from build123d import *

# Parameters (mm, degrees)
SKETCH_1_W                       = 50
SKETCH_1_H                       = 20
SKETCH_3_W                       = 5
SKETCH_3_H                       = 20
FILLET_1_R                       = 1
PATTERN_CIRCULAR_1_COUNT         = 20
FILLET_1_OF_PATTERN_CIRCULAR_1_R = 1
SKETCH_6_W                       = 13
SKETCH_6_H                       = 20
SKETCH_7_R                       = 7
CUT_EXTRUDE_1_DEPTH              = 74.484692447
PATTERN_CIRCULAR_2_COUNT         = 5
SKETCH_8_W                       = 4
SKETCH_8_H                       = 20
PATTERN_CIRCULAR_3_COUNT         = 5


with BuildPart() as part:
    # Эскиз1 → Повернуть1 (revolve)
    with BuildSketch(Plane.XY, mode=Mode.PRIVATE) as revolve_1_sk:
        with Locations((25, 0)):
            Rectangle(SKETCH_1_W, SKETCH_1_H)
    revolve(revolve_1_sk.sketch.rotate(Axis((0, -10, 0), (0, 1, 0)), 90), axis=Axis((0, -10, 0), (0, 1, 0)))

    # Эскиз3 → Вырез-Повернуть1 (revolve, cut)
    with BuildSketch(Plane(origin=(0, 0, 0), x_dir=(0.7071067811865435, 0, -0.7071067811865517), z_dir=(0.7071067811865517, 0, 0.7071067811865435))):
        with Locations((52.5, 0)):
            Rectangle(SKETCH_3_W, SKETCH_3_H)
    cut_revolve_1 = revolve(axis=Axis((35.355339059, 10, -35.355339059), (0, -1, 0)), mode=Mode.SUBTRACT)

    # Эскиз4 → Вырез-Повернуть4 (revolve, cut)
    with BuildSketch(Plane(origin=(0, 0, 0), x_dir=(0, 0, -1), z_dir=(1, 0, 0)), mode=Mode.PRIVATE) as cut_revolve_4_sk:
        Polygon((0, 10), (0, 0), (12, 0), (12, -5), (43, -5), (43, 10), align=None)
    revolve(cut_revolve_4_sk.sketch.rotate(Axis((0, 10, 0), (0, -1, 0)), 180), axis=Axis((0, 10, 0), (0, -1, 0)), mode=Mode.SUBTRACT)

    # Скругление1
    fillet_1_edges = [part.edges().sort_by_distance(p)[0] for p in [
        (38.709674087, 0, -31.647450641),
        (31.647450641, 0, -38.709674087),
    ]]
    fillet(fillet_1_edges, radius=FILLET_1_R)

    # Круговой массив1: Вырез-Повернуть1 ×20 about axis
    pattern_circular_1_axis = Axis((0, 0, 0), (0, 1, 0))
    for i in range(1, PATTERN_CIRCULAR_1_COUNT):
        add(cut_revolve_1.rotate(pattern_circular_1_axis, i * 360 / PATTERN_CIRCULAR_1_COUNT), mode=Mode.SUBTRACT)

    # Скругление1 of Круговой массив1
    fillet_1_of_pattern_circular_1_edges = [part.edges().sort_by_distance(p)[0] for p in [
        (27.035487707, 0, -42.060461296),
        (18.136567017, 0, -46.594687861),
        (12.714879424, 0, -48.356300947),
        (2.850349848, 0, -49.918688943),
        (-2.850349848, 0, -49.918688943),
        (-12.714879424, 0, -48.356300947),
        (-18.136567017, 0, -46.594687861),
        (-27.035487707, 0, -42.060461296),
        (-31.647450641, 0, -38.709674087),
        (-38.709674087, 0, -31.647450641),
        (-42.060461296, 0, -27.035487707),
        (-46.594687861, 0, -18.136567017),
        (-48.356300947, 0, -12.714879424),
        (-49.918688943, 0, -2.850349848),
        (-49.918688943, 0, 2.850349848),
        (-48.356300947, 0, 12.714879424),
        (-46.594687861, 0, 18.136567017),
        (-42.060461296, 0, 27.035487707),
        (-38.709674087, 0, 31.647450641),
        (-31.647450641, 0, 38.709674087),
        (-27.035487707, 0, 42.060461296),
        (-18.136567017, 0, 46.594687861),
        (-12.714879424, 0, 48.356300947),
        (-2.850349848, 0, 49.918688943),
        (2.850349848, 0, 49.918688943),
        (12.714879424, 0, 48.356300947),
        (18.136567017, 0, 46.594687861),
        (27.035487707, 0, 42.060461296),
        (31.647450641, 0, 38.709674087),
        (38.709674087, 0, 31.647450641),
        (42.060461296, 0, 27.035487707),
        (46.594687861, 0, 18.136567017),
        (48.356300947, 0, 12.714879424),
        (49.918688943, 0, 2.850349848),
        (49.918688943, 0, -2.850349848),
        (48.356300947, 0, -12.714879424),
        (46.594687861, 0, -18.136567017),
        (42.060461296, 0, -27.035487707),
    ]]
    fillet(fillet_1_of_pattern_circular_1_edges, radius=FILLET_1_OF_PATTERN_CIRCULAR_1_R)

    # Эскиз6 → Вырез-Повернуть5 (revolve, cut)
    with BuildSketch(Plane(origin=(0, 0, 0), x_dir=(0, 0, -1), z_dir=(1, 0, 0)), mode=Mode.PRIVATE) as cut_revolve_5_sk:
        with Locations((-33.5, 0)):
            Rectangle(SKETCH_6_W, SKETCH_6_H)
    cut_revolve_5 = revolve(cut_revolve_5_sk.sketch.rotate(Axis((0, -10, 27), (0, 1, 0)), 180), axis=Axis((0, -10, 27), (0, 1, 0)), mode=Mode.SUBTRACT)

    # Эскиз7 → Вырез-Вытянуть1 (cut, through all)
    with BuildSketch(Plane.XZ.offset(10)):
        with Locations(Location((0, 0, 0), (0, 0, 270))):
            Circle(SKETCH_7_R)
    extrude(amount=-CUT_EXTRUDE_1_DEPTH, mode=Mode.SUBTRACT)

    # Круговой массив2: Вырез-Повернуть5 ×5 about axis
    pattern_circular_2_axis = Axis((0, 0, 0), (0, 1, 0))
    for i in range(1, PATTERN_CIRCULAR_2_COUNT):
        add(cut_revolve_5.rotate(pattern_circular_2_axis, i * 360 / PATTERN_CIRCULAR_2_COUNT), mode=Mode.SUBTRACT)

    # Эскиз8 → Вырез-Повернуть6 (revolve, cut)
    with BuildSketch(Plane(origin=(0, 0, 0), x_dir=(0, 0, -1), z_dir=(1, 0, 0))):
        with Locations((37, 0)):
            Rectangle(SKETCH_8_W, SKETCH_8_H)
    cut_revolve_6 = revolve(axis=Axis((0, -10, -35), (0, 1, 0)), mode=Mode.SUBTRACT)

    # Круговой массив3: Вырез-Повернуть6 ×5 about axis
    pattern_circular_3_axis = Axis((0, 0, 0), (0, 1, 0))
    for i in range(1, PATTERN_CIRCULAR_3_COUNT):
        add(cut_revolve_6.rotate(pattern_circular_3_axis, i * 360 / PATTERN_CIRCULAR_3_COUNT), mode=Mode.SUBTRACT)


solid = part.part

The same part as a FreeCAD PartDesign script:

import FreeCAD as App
import Part
import Sketcher

V = App.Vector


def edges_at(feature, points):
    """Names of the edges that pass closest to the given points."""
    edges = feature.Shape.Edges
    near = lambda p: min(range(len(edges)), key=lambda i: edges[i].distToShape(Part.Vertex(*p))[0])
    return sorted({f"Edge{near(p) + 1}" for p in points})

doc = App.newDocument("Part")
body = doc.addObject("PartDesign::Body", "Body")

# Sketch on XY plane
sketch1 = body.newObject("Sketcher::SketchObject", "Sketch")
sketch1.AttachmentSupport = (doc.getObject("XY_Plane"), [""])
sketch1.MapMode = "FlatFace"
sketch1.addGeometry(Part.LineSegment(V(0, 10, 0), V(0, -10, 0)), False)
sketch1.addGeometry(Part.LineSegment(V(0, -10, 0), V(50, -10, 0)), False)
sketch1.addGeometry(Part.LineSegment(V(50, -10, 0), V(50, 10, 0)), False)
sketch1.addGeometry(Part.LineSegment(V(50, 10, 0), V(0, 10, 0)), False)
sketch1.addConstraint(Sketcher.Constraint("Coincident", 0, 2, 1, 1))
sketch1.addConstraint(Sketcher.Constraint("Coincident", 1, 2, 2, 1))
sketch1.addConstraint(Sketcher.Constraint("Coincident", 2, 2, 3, 1))
sketch1.addConstraint(Sketcher.Constraint("Coincident", 3, 2, 0, 1))
sketch1.addConstraint(Sketcher.Constraint("Vertical", 0))
sketch1.addConstraint(Sketcher.Constraint("Horizontal", 1))
sketch1.addConstraint(Sketcher.Constraint("Vertical", 2))
sketch1.addConstraint(Sketcher.Constraint("Horizontal", 3))
sketch1.addConstraint(Sketcher.Constraint("Symmetric", 0, 2, 3, 2, -1, 1))
sketch1.addConstraint(Sketcher.Constraint("DistanceX", 1, 1, 1, 2, 50.0))
sketch1.addConstraint(Sketcher.Constraint("DistanceY", 0, 2, 0, 1, 20.0))
revolution = body.newObject("PartDesign::Revolution", "Revolution")
revolution.Profile = sketch1
revolution.ReferenceAxis = (sketch1, ["V_Axis"])
revolution.Angle = 360

# Sketch on an angled plane
sketch2 = body.newObject("Sketcher::SketchObject", "Sketch001")
sketch2.Placement = App.Placement(V(0, 0, 0), App.Rotation(V(0.707106781, 0, -0.707106781), V(0, 0.999999999, 0), V(0.707106781, 0, 0.707106781), "ZXY"))
sketch2.addGeometry(Part.LineSegment(V(50, 10, 0), V(50, -10, 0)), False)
sketch2.addGeometry(Part.LineSegment(V(50, -10, 0), V(55, -10, 0)), False)
sketch2.addGeometry(Part.LineSegment(V(55, -10, 0), V(55, 10, 0)), False)
sketch2.addGeometry(Part.LineSegment(V(55, 10, 0), V(50, 10, 0)), False)
sketch2.addGeometry(Part.LineSegment(V(50, 10, 0), V(50, -10, 0)), True)  # axis
sketch2.addConstraint(Sketcher.Constraint("Coincident", 0, 2, 1, 1))
sketch2.addConstraint(Sketcher.Constraint("Coincident", 1, 2, 2, 1))
sketch2.addConstraint(Sketcher.Constraint("Coincident", 2, 2, 3, 1))
sketch2.addConstraint(Sketcher.Constraint("Coincident", 3, 2, 0, 1))
sketch2.addConstraint(Sketcher.Constraint("Vertical", 0))
sketch2.addConstraint(Sketcher.Constraint("Horizontal", 1))
sketch2.addConstraint(Sketcher.Constraint("Vertical", 2))
sketch2.addConstraint(Sketcher.Constraint("Horizontal", 3))
sketch2.addConstraint(Sketcher.Constraint("Vertical", 4))
sketch2.addConstraint(Sketcher.Constraint("Coincident", 4, 1, 3, 2))
sketch2.addConstraint(Sketcher.Constraint("Horizontal", 1, 2, 4, 2))
sketch2.addConstraint(Sketcher.Constraint("DistanceX", 1, 1, 1, 2, 5.0))
sketch2.addConstraint(Sketcher.Constraint("DistanceY", 0, 2, 0, 1, 20.0))
sketch2.addConstraint(Sketcher.Constraint("DistanceX", -1, 1, 0, 2, 50.0))
sketch2.addConstraint(Sketcher.Constraint("DistanceY", 0, 2, -1, 1, 10.0))
groove = body.newObject("PartDesign::Groove", "Groove")
groove.Profile = sketch2
groove.ReferenceAxis = (sketch2, ["Axis0"])
groove.Angle = 360

# Sketch on YZ plane
sketch3 = body.newObject("Sketcher::SketchObject", "Sketch002")
sketch3.AttachmentSupport = (doc.getObject("YZ_Plane"), [""])
sketch3.MapMode = "FlatFace"
sketch3.addGeometry(Part.LineSegment(V(10, 0, 0), V(0, 0, 0)), False)
sketch3.addGeometry(Part.LineSegment(V(0, 0, 0), V(0, -12, 0)), False)
sketch3.addGeometry(Part.LineSegment(V(0, -12, 0), V(-5, -12, 0)), False)
sketch3.addGeometry(Part.LineSegment(V(-5, -12, 0), V(-5, -43, 0)), False)
sketch3.addGeometry(Part.LineSegment(V(-5, -43, 0), V(10, -43, 0)), False)
sketch3.addGeometry(Part.LineSegment(V(10, -43, 0), V(10, 0, 0)), False)
sketch3.addConstraint(Sketcher.Constraint("Coincident", 0, 2, 1, 1))
sketch3.addConstraint(Sketcher.Constraint("Coincident", 1, 2, 2, 1))
sketch3.addConstraint(Sketcher.Constraint("Coincident", 2, 2, 3, 1))
sketch3.addConstraint(Sketcher.Constraint("Coincident", 3, 2, 4, 1))
sketch3.addConstraint(Sketcher.Constraint("Coincident", 4, 2, 5, 1))
sketch3.addConstraint(Sketcher.Constraint("Coincident", 5, 2, 0, 1))
sketch3.addConstraint(Sketcher.Constraint("Horizontal", 0))
sketch3.addConstraint(Sketcher.Constraint("Vertical", 1))
sketch3.addConstraint(Sketcher.Constraint("Horizontal", 2))
sketch3.addConstraint(Sketcher.Constraint("Vertical", 3))
sketch3.addConstraint(Sketcher.Constraint("Horizontal", 4))
sketch3.addConstraint(Sketcher.Constraint("Vertical", 5))
sketch3.addConstraint(Sketcher.Constraint("Coincident", 0, 2, -1, 1))
sketch3.addConstraint(Sketcher.Constraint("DistanceX", 0, 2, 0, 1, 10.0))
sketch3.addConstraint(Sketcher.Constraint("DistanceX", 2, 2, 2, 1, 5.0))
sketch3.addConstraint(Sketcher.Constraint("DistanceY", 1, 2, 1, 1, 12.0))
sketch3.addConstraint(Sketcher.Constraint("DistanceY", 3, 2, 3, 1, 31.0))
groove2 = body.newObject("PartDesign::Groove", "Groove001")
groove2.Profile = sketch3
groove2.ReferenceAxis = (sketch3, ["H_Axis"])
groove2.Angle = 360
doc.recompute()

fillet = body.newObject("PartDesign::Fillet", "Fillet")
fillet.Base = (groove2, edges_at(groove2, [(38.71, 0, -31.647), (31.647, 0, -38.71)]))
fillet.Radius = 1
doc.recompute()

polarpattern = body.newObject("PartDesign::PolarPattern", "PolarPattern")
polarpattern.Originals = [groove]
polarpattern.Axis = (doc.getObject("Y_Axis"), [""])
polarpattern.Angle = 360
polarpattern.Occurrences = 20
body.Tip = polarpattern
doc.recompute()

fillet2 = body.newObject("PartDesign::Fillet", "Fillet001")
fillet2.Base = (polarpattern, edges_at(polarpattern, [
    (27.035, 0, -42.06),
    (18.137, 0, -46.595),
    (12.715, 0, -48.356),
    (2.85, 0, -49.919),
    (-2.85, 0, -49.919),
    (-12.715, 0, -48.356),
    (-18.137, 0, -46.595),
    (-27.035, 0, -42.06),
    (-31.647, 0, -38.71),
    (-38.71, 0, -31.647),
    (-42.06, 0, -27.035),
    (-46.595, 0, -18.137),
    (-48.356, 0, -12.715),
    (-49.919, 0, -2.85),
    (-49.919, 0, 2.85),
    (-48.356, 0, 12.715),
    (-46.595, 0, 18.137),
    (-42.06, 0, 27.035),
    (-38.71, 0, 31.647),
    (-31.647, 0, 38.71),
    (-27.035, 0, 42.06),
    (-18.137, 0, 46.595),
    (-12.715, 0, 48.356),
    (-2.85, 0, 49.919),
    (2.85, 0, 49.919),
    (12.715, 0, 48.356),
    (18.137, 0, 46.595),
    (27.035, 0, 42.06),
    (31.647, 0, 38.71),
    (38.71, 0, 31.647),
    (42.06, 0, 27.035),
    (46.595, 0, 18.137),
    (48.356, 0, 12.715),
    (49.919, 0, 2.85),
    (49.919, 0, -2.85),
    (48.356, 0, -12.715),
    (46.595, 0, -18.137),
    (42.06, 0, -27.035),
]))
fillet2.Radius = 1

# Sketch on YZ plane
sketch4 = body.newObject("Sketcher::SketchObject", "Sketch003")
sketch4.AttachmentSupport = (doc.getObject("YZ_Plane"), [""])
sketch4.MapMode = "FlatFace"
sketch4.addGeometry(Part.LineSegment(V(10, 40, 0), V(-10, 40, 0)), False)
sketch4.addGeometry(Part.LineSegment(V(-10, 40, 0), V(-10, 27, 0)), False)
sketch4.addGeometry(Part.LineSegment(V(-10, 27, 0), V(10, 27, 0)), False)
sketch4.addGeometry(Part.LineSegment(V(10, 27, 0), V(10, 40, 0)), False)
sketch4.addGeometry(Part.LineSegment(V(-10, 27, 0), V(10, 27, 0)), True)  # axis
sketch4.addConstraint(Sketcher.Constraint("Coincident", 0, 2, 1, 1))
sketch4.addConstraint(Sketcher.Constraint("Coincident", 1, 2, 2, 1))
sketch4.addConstraint(Sketcher.Constraint("Coincident", 2, 2, 3, 1))
sketch4.addConstraint(Sketcher.Constraint("Coincident", 3, 2, 0, 1))
sketch4.addConstraint(Sketcher.Constraint("Horizontal", 0))
sketch4.addConstraint(Sketcher.Constraint("Vertical", 1))
sketch4.addConstraint(Sketcher.Constraint("Horizontal", 2))
sketch4.addConstraint(Sketcher.Constraint("Vertical", 3))
sketch4.addConstraint(Sketcher.Constraint("Horizontal", 4))
sketch4.addConstraint(Sketcher.Constraint("Coincident", 4, 1, 1, 2))
sketch4.addConstraint(Sketcher.Constraint("Vertical", 3, 2, 4, 2))
sketch4.addConstraint(Sketcher.Constraint("DistanceX", 0, 2, 0, 1, 20.0))
sketch4.addConstraint(Sketcher.Constraint("DistanceY", 1, 2, 1, 1, 13.0))
sketch4.addConstraint(Sketcher.Constraint("DistanceX", 0, 2, -1, 1, 10.0))
sketch4.addConstraint(Sketcher.Constraint("DistanceY", -1, 1, 0, 2, 40.0))
groove3 = body.newObject("PartDesign::Groove", "Groove002")
groove3.Profile = sketch4
groove3.ReferenceAxis = (sketch4, ["Axis0"])
groove3.Angle = 360

# Sketch on XZ plane
sketch5 = body.newObject("Sketcher::SketchObject", "Sketch004")
sketch5.AttachmentSupport = (doc.getObject("XZ_Plane"), [""])
sketch5.MapMode = "FlatFace"
sketch5.AttachmentOffset = App.Placement(V(0, 0, 10), App.Rotation())
sketch5.addGeometry(Part.Circle(V(0, 0, 0), V(0, 0, 1), 7), False)
sketch5.addConstraint(Sketcher.Constraint("Coincident", 0, 3, -1, 1))
sketch5.addConstraint(Sketcher.Constraint("Diameter", 0, 14.0))
pocket1 = body.newObject("PartDesign::Pocket", "Pocket")
pocket1.Profile = sketch5
pocket1.Type = "ThroughAll"
doc.recompute()

polarpattern2 = body.newObject("PartDesign::PolarPattern", "PolarPattern001")
polarpattern2.Originals = [groove3]
polarpattern2.Axis = (doc.getObject("Y_Axis"), [""])
polarpattern2.Angle = 360
polarpattern2.Occurrences = 5
body.Tip = polarpattern2

# Sketch on YZ plane
sketch6 = body.newObject("Sketcher::SketchObject", "Sketch005")
sketch6.AttachmentSupport = (doc.getObject("YZ_Plane"), [""])
sketch6.MapMode = "FlatFace"
sketch6.addGeometry(Part.LineSegment(V(10, -35, 0), V(-10, -35, 0)), False)
sketch6.addGeometry(Part.LineSegment(V(-10, -35, 0), V(-10, -39, 0)), False)
sketch6.addGeometry(Part.LineSegment(V(-10, -39, 0), V(10, -39, 0)), False)
sketch6.addGeometry(Part.LineSegment(V(10, -39, 0), V(10, -35, 0)), False)
sketch6.addGeometry(Part.LineSegment(V(-10, -35, 0), V(10, -35, 0)), True)  # axis
sketch6.addConstraint(Sketcher.Constraint("Coincident", 0, 2, 1, 1))
sketch6.addConstraint(Sketcher.Constraint("Coincident", 1, 2, 2, 1))
sketch6.addConstraint(Sketcher.Constraint("Coincident", 2, 2, 3, 1))
sketch6.addConstraint(Sketcher.Constraint("Coincident", 3, 2, 0, 1))
sketch6.addConstraint(Sketcher.Constraint("Horizontal", 0))
sketch6.addConstraint(Sketcher.Constraint("Vertical", 1))
sketch6.addConstraint(Sketcher.Constraint("Horizontal", 2))
sketch6.addConstraint(Sketcher.Constraint("Vertical", 3))
sketch6.addConstraint(Sketcher.Constraint("Horizontal", 4))
sketch6.addConstraint(Sketcher.Constraint("Coincident", 4, 1, 0, 2))
sketch6.addConstraint(Sketcher.Constraint("Vertical", 2, 2, 4, 2))
sketch6.addConstraint(Sketcher.Constraint("DistanceX", 0, 2, 0, 1, 20.0))
sketch6.addConstraint(Sketcher.Constraint("DistanceY", 1, 2, 1, 1, 4.0))
sketch6.addConstraint(Sketcher.Constraint("DistanceX", 0, 2, -1, 1, 10.0))
sketch6.addConstraint(Sketcher.Constraint("DistanceY", 0, 2, -1, 1, 35.0))
groove4 = body.newObject("PartDesign::Groove", "Groove003")
groove4.Profile = sketch6
groove4.ReferenceAxis = (sketch6, ["Axis0"])
groove4.Angle = 360
doc.recompute()

polarpattern3 = body.newObject("PartDesign::PolarPattern", "PolarPattern002")
polarpattern3.Originals = [groove4]
polarpattern3.Axis = (doc.getObject("Y_Axis"), [""])
polarpattern3.Angle = 360
polarpattern3.Occurrences = 5
body.Tip = polarpattern3

doc.recompute()
